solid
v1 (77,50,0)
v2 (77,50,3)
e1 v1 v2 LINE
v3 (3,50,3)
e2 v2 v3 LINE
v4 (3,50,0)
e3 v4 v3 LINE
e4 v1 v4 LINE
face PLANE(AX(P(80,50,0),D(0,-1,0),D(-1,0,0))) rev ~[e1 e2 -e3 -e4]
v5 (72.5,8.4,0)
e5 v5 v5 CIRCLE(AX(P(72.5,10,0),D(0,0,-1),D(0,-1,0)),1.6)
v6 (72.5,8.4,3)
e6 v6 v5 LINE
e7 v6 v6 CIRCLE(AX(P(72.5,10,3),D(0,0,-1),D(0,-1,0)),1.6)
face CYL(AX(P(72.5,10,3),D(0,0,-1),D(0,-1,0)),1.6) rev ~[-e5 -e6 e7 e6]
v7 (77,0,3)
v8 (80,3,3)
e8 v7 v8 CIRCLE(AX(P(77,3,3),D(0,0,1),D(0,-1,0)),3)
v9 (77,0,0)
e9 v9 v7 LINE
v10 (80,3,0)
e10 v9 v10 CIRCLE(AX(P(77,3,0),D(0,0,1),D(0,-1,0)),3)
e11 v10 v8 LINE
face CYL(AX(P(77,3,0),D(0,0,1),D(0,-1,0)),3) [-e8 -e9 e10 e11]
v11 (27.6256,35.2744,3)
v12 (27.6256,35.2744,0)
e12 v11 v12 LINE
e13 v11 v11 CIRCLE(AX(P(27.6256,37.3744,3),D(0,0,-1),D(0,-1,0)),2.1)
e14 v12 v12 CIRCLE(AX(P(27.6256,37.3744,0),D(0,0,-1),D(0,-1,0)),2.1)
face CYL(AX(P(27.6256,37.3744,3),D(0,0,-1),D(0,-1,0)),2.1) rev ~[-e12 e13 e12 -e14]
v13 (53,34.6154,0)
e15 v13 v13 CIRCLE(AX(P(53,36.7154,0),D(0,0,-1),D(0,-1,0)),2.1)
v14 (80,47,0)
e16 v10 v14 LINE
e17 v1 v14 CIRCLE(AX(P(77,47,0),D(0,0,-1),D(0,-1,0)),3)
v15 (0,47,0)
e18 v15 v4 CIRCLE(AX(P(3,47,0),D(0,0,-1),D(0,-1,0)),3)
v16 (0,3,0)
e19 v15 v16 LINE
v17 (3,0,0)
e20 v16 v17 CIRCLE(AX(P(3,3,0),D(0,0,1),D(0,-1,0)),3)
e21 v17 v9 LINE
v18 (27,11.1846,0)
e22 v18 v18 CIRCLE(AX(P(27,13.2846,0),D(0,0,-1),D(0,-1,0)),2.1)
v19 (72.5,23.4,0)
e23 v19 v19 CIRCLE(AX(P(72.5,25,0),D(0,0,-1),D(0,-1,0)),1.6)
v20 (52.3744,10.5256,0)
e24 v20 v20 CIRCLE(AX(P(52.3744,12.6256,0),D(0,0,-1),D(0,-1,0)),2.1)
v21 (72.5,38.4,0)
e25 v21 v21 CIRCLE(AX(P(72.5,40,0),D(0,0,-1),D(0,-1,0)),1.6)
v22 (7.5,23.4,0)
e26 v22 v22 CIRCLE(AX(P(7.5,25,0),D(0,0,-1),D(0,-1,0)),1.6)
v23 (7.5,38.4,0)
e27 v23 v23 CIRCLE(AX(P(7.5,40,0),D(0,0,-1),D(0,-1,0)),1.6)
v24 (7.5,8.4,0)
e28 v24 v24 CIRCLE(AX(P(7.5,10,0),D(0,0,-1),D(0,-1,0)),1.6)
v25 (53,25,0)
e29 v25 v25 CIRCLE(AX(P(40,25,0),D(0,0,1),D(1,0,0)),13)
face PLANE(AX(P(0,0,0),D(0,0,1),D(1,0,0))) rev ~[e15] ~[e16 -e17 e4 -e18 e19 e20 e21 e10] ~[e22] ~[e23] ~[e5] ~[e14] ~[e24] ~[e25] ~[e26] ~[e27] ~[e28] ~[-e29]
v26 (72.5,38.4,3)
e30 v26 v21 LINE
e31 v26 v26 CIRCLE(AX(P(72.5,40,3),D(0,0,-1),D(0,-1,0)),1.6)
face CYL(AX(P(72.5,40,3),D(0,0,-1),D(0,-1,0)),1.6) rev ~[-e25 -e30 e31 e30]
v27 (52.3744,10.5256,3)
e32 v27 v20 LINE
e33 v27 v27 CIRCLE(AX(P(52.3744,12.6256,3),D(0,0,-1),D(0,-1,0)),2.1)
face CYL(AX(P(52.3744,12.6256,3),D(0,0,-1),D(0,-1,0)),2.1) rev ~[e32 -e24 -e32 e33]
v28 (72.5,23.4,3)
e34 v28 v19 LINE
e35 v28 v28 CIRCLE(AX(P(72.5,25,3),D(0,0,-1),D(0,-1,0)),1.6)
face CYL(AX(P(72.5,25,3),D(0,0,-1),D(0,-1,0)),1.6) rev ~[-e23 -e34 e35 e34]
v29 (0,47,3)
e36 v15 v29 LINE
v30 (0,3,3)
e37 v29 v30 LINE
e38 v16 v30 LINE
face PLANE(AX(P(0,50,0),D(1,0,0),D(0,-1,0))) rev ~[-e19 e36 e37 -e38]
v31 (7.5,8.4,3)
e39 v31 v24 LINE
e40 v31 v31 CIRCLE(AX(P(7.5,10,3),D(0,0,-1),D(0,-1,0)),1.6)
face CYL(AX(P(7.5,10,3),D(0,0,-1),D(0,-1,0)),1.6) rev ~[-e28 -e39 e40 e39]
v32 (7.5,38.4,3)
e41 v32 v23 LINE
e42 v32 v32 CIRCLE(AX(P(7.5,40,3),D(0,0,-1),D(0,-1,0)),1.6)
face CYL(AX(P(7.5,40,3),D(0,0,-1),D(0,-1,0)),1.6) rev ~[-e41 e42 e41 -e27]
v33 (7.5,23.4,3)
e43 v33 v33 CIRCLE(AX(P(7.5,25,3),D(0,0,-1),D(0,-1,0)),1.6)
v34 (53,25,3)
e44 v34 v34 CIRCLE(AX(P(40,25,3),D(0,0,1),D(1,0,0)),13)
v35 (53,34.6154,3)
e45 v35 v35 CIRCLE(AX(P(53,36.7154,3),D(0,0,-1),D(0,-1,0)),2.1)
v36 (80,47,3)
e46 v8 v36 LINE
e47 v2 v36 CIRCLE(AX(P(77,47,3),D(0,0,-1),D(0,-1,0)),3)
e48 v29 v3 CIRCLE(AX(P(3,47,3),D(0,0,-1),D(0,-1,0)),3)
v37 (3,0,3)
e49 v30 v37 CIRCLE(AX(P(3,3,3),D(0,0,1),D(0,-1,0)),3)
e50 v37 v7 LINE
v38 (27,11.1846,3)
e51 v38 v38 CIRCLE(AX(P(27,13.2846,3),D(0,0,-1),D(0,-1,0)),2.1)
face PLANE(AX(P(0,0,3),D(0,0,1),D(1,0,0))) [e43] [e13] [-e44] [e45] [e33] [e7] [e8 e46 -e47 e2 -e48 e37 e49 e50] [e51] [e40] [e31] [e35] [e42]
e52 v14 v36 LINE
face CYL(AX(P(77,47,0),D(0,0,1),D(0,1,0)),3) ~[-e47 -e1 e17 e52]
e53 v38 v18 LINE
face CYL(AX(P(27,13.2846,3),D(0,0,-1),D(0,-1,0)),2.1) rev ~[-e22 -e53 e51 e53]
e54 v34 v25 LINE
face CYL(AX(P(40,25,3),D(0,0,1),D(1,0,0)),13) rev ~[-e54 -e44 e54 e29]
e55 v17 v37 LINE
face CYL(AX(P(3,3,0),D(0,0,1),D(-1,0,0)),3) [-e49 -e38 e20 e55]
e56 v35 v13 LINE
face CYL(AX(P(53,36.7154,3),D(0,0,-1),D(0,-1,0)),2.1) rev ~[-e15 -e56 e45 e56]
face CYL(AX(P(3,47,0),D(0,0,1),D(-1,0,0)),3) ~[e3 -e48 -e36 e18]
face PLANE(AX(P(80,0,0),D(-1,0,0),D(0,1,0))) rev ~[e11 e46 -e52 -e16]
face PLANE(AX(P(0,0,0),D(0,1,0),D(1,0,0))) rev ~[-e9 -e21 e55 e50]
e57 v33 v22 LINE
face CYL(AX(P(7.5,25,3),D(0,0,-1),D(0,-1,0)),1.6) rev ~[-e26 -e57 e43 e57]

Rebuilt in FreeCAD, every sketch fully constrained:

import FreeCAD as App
import Part
import Sketcher
Q = App.Units.Quantity


def edges_at(feature, points):
    """Names of the edges that pass closest to the given points."""
    edges = feature.Shape.Edges
    near = lambda p: min(range(len(edges)), key=lambda i: edges[i].distToShape(Part.Vertex(*p))[0])
    return sorted({f"Edge{near(p) + 1}" for p in points})

doc = App.newDocument("Part")
body = doc.addObject("PartDesign::Body", "Body")

# Sketch on XY plane
sketch1 = body.newObject("Sketcher::SketchObject", "Sketch")
sketch1.AttachmentSupport = (doc.getObject("XY_Plane"), [""])
sketch1.MapMode = "FlatFace"
sketch1.addGeometry([
    Part.LineSegment(App.Vector(0, 50, 0), App.Vector(0, 0, 0)),
    Part.LineSegment(App.Vector(0, 0, 0), App.Vector(80, 0, 0)),
    Part.LineSegment(App.Vector(80, 0, 0), App.Vector(80, 50, 0)),
    Part.LineSegment(App.Vector(80, 50, 0), App.Vector(0, 50, 0)),
], False)
sketch1.addConstraint([
    Sketcher.Constraint("Coincident", 0, 2, 1, 1),
    Sketcher.Constraint("Coincident", 1, 2, 2, 1),
    Sketcher.Constraint("Coincident", 2, 2, 3, 1),
    Sketcher.Constraint("Coincident", 3, 2, 0, 1),
    Sketcher.Constraint("Vertical", 0),
    Sketcher.Constraint("Horizontal", 1),
    Sketcher.Constraint("Vertical", 2),
    Sketcher.Constraint("Horizontal", 3),
    Sketcher.Constraint("Coincident", 0, 2, -1, 1),
    Sketcher.Constraint("DistanceX", 1, 1, 1, 2, Q("80 mm")),
    Sketcher.Constraint("DistanceY", 0, 2, 0, 1, Q("50 mm")),
])
pad1 = body.newObject("PartDesign::Pad", "Pad")
pad1.Profile = sketch1
pad1.Length = 3

# Sketch on XY plane
sketch2 = body.newObject("Sketcher::SketchObject", "Sketch001")
sketch2.AttachmentSupport = (doc.getObject("XY_Plane"), [""])
sketch2.MapMode = "FlatFace"
sketch2.AttachmentOffset = App.Placement(App.Vector(0, 0, 3), App.Rotation())
sketch2.addGeometry(Part.Circle(App.Vector(40, 25, 0), App.Vector(0, 0, 1), 13), False)
sketch2.addConstraint([
    Sketcher.Constraint("Diameter", 0, Q("26 mm")),
    Sketcher.Constraint("DistanceX", -1, 1, 0, 3, Q("40 mm")),
    Sketcher.Constraint("DistanceY", -1, 1, 0, 3, Q("25 mm")),
])
pocket1 = body.newObject("PartDesign::Pocket", "Pocket")
pocket1.Profile = sketch2
pocket1.Length = 3

# Sketch on XY plane
sketch3 = body.newObject("Sketcher::SketchObject", "Sketch002")
sketch3.AttachmentSupport = (doc.getObject("XY_Plane"), [""])
sketch3.MapMode = "FlatFace"
sketch3.AttachmentOffset = App.Placement(App.Vector(0, 0, 3), App.Rotation())
sketch3.addGeometry([
    Part.Circle(App.Vector(27.6, 37.4, 0), App.Vector(0, 0, 1), 2.1),
    Part.Circle(App.Vector(53, 36.7, 0), App.Vector(0, 0, 1), 2.1),
    Part.Circle(App.Vector(27, 13.3, 0), App.Vector(0, 0, 1), 2.1),
    Part.Circle(App.Vector(52.4, 12.6, 0), App.Vector(0, 0, 1), 2.1),
], False)
sketch3.addConstraint([
    Sketcher.Constraint("Equal", 0, 1),
    Sketcher.Constraint("Equal", 1, 2),
    Sketcher.Constraint("Equal", 2, 3),
    Sketcher.Constraint("Diameter", 0, Q("4.2 mm")),
    Sketcher.Constraint("DistanceX", -1, 1, 1, 3, Q("53 mm")),
    Sketcher.Constraint("DistanceX", -1, 1, 2, 3, Q("27 mm")),
    Sketcher.Constraint("DistanceY", 1, 3, 0, 3, Q("0.659 mm")),
    Sketcher.Constraint("DistanceY", 3, 3, 2, 3, Q("0.659 mm")),
    Sketcher.Constraint("DistanceX", -1, 1, 0, 3, Q("27.6256 mm")),
    Sketcher.Constraint("DistanceY", -1, 1, 0, 3, Q("37.3744 mm")),
    Sketcher.Constraint("DistanceY", -1, 1, 2, 3, Q("13.2846 mm")),
    Sketcher.Constraint("DistanceX", -1, 1, 3, 3, Q("52.3744 mm")),
])
doc.recompute()
hole = body.newObject("PartDesign::Hole", "Hole")
hole.Profile = sketch3
hole.ThreadType = "None"
hole.Diameter = 4.2
hole.DepthType = "ThroughAll"

# Sketch on XY plane
sketch4 = body.newObject("Sketcher::SketchObject", "Sketch003")
sketch4.AttachmentSupport = (doc.getObject("XY_Plane"), [""])
sketch4.MapMode = "FlatFace"
sketch4.AttachmentOffset = App.Placement(App.Vector(0, 0, 3), App.Rotation())
sketch4.addGeometry([
    Part.Circle(App.Vector(7.5, 40, 0), App.Vector(0, 0, 1), 1.6),  # 0
    Part.Circle(App.Vector(7.5, 25, 0), App.Vector(0, 0, 1), 1.6),  # 1
    Part.Circle(App.Vector(7.5, 10, 0), App.Vector(0, 0, 1), 1.6),  # 2
    Part.Circle(App.Vector(72.5, 40, 0), App.Vector(0, 0, 1), 1.6),  # 3
    Part.Circle(App.Vector(72.5, 25, 0), App.Vector(0, 0, 1), 1.6),  # 4
    Part.Circle(App.Vector(72.5, 10, 0), App.Vector(0, 0, 1), 1.6),  # 5
], False)
sketch4.addConstraint([
    Sketcher.Constraint("Equal", 0, 1),
    Sketcher.Constraint("Equal", 1, 2),
    Sketcher.Constraint("Equal", 2, 3),
    Sketcher.Constraint("Equal", 3, 4),
    Sketcher.Constraint("Equal", 4, 5),
    Sketcher.Constraint("Horizontal", 0, 3, 3, 3),
    Sketcher.Constraint("Horizontal", 1, 3, 4, 3),
    Sketcher.Constraint("Horizontal", 2, 3, 5, 3),
    Sketcher.Constraint("Vertical", 0, 3, 1, 3),
    Sketcher.Constraint("Vertical", 1, 3, 2, 3),
    Sketcher.Constraint("Vertical", 3, 3, 4, 3),
    Sketcher.Constraint("Vertical", 4, 3, 5, 3),
    Sketcher.Constraint("Diameter", 0, Q("3.2 mm")),
    Sketcher.Constraint("DistanceY", -1, 1, 0, 3, Q("40 mm")),
    Sketcher.Constraint("DistanceY", -1, 1, 1, 3, Q("25 mm")),
    Sketcher.Constraint("DistanceY", -1, 1, 2, 3, Q("10 mm")),
    Sketcher.Constraint("DistanceX", 0, 3, 3, 3, Q("65 mm")),
    Sketcher.Constraint("DistanceX", -1, 1, 0, 3, Q("7.5 mm")),
])
doc.recompute()
hole2 = body.newObject("PartDesign::Hole", "Hole001")
hole2.Profile = sketch4
hole2.ThreadType = "None"
hole2.Diameter = 3.2
hole2.DepthType = "ThroughAll"
doc.recompute()

fillet = body.newObject("PartDesign::Fillet", "Fillet")
fillet.Base = (hole2, edges_at(hole2, [
    (0, 50, 1.5),
    (80, 50, 1.5),
    (80, 0, 1.5),
    (0, 0, 1.5),
]))
fillet.Radius = 3

doc.recompute()
